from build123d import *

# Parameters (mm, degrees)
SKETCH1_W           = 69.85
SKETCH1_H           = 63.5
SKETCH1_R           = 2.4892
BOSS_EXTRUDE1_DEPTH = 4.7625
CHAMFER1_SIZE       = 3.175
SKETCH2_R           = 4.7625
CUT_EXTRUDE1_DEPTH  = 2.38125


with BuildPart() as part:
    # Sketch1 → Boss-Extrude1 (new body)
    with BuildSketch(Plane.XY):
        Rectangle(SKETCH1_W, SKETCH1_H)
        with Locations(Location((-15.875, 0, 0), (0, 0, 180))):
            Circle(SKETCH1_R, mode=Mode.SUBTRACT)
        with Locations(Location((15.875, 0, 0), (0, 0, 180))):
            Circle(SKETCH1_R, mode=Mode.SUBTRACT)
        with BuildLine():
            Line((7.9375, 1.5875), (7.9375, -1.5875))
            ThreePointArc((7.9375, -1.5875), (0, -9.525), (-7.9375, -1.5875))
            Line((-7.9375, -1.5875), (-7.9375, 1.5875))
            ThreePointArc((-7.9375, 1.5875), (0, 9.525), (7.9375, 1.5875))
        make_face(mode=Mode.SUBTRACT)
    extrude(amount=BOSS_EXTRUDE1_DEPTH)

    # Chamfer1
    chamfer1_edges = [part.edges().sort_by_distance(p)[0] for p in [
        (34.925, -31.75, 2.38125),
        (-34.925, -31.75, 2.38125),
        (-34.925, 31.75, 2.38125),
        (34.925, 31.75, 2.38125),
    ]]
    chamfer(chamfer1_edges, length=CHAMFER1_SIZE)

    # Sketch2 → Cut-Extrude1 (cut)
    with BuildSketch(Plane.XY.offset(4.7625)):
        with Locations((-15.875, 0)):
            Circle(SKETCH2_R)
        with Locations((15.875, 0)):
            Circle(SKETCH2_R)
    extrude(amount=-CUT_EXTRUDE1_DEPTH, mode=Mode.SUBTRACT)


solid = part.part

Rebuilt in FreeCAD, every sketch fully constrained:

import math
import FreeCAD as App
import Part
import Sketcher
from FreeCAD import Vector
Q = App.Units.Quantity


def edges_at(feature, points):
    """Names of the edges that pass closest to the given points."""
    edges = feature.Shape.Edges
    near = lambda p: min(range(len(edges)), key=lambda i: edges[i].distToShape(Part.Vertex(*p))[0])
    return sorted({f"Edge{near(p) + 1}" for p in points})

doc = App.newDocument("Part")
body = doc.addObject("PartDesign::Body", "Body")

# Sketch on XY plane
sketch1 = body.newObject("Sketcher::SketchObject", "Sketch")
sketch1.AttachmentSupport = (doc.getObject("XY_Plane"), [""])
sketch1.MapMode = "FlatFace"
sketch1.addGeometry([
    Part.LineSegment(Vector(-34.925, 31.75, 0), Vector(-34.925, -31.75, 0)),  # 0
    Part.LineSegment(Vector(-34.925, -31.75, 0), Vector(34.925, -31.75, 0)),  # 1
    Part.LineSegment(Vector(34.925, -31.75, 0), Vector(34.925, 31.75, 0)),  # 2
    Part.LineSegment(Vector(34.925, 31.75, 0), Vector(-34.925, 31.75, 0)),  # 3
    Part.Circle(Vector(-15.875, 0, 0), Vector(0, 0, 1), 2.4892),  # 4
    Part.ArcOfCircle(Part.Circle(Vector(0, 1.5875, 0), Vector(0, 0, 1), 7.9375), math.radians(0), math.radians(180)),  # 5
    Part.LineSegment(Vector(7.9375, 1.5875, 0), Vector(7.9375, -1.5875, 0)),  # 6
    Part.ArcOfCircle(Part.Circle(Vector(0, -1.5875, 0), Vector(0, 0, 1), 7.9375), math.radians(180), math.radians(360)),  # 7
    Part.LineSegment(Vector(-7.9375, -1.5875, 0), Vector(-7.9375, 1.5875, 0)),  # 8
    Part.Circle(Vector(15.875, 0, 0), Vector(0, 0, 1), 2.4892),  # 9
], False)
sketch1.addConstraint([
    Sketcher.Constraint("Coincident", 0, 2, 1, 1),
    Sketcher.Constraint("Coincident", 1, 2, 2, 1),
    Sketcher.Constraint("Coincident", 2, 2, 3, 1),
    Sketcher.Constraint("Coincident", 3, 2, 0, 1),
    Sketcher.Constraint("Tangent", 5, 1, 6, 1),
    Sketcher.Constraint("Tangent", 6, 2, 7, 2),
    Sketcher.Constraint("Tangent", 7, 1, 8, 1),
    Sketcher.Constraint("Tangent", 8, 2, 5, 2),
    Sketcher.Constraint("Vertical", 0),
    Sketcher.Constraint("Horizontal", 1),
    Sketcher.Constraint("Vertical", 2),
    Sketcher.Constraint("Horizontal", 3),
    Sketcher.Constraint("Vertical", 6),
    Sketcher.Constraint("Vertical", 8),
    Sketcher.Constraint("Equal", 4, 9),
    Sketcher.Constraint("Symmetric", 5, 3, 7, 3, -1, 1),
    Sketcher.Constraint("Symmetric", 4, 3, 9, 3, -1, 1),
    Sketcher.Constraint("Symmetric", 0, 2, 2, 2, -1, 1),
    Sketcher.Constraint("PointOnObject", 4, 3, -1),
    Sketcher.Constraint("Diameter", 4, Q("0.196 in")),
    Sketcher.Constraint("DistanceY", 0, 2, 0, 1, Q("2.5 in")),
    Sketcher.Constraint("Radius", 5, Q("0.3125 in")),
    Sketcher.Constraint("DistanceX", 0, 2, 9, 3, Q("2 in")),
    Sketcher.Constraint("DistanceX", 1, 1, 1, 2, Q("2.75 in")),
    Sketcher.Constraint("DistanceY", 6, 2, 6, 1, Q("0.125 in")),
])
pad1 = body.newObject("PartDesign::Pad", "Pad")
pad1.Profile = sketch1
pad1.Length = Q("0.1875 in")
doc.recompute()

chamfer = body.newObject("PartDesign::Chamfer", "Chamfer")
chamfer.Base = (pad1, edges_at(pad1, [
    (34.925, -31.75, 2.381),
    (-34.925, -31.75, 2.381),
    (-34.925, 31.75, 2.381),
    (34.925, 31.75, 2.381),
]))
chamfer.Size = Q("0.125 in")

# Sketch on XY plane
sketch2 = body.newObject("Sketcher::SketchObject", "Sketch001")
sketch2.AttachmentSupport = (doc.getObject("XY_Plane"), [""])
sketch2.MapMode = "FlatFace"
sketch2.AttachmentOffset = App.Placement(Vector(0, 0, 0.1875 * 25.4), App.Rotation())
sketch2.addGeometry([
    Part.Circle(Vector(-15.875, 0, 0), Vector(0, 0, 1), 4.7625),
    Part.Circle(Vector(15.875, 0, 0), Vector(0, 0, 1), 4.7625),
], False)
sketch2.addConstraint([
    Sketcher.Constraint("Equal", 0, 1),
    Sketcher.Constraint("Symmetric", 0, 3, 1, 3, -1, 1),
    Sketcher.Constraint("PointOnObject", 0, 3, -1),
    Sketcher.Constraint("Diameter", 0, Q("0.375 in")),
    Sketcher.Constraint("DistanceX", 0, 3, 1, 3, Q("1.25 in")),
])
pocket1 = body.newObject("PartDesign::Pocket", "Pocket")
pocket1.Profile = sketch2
pocket1.Length = Q("0.09375 in")

doc.recompute()
